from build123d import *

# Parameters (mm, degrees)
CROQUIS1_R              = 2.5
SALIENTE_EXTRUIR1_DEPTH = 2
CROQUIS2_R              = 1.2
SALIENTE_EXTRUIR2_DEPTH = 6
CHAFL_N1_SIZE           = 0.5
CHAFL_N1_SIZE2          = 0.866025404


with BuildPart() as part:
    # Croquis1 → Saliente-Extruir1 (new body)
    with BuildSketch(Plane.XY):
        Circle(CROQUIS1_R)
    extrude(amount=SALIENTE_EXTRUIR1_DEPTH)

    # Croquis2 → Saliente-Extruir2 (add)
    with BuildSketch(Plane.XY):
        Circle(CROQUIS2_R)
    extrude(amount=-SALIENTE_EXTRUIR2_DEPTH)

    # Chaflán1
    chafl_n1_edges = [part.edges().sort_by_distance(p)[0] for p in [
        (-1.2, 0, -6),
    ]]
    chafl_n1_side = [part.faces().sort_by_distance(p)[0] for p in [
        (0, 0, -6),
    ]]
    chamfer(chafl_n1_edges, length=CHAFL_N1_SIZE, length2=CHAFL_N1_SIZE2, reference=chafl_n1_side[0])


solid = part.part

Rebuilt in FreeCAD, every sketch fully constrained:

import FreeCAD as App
import Part
import Sketcher

V = App.Vector
Q = App.Units.Quantity


def edges_at(feature, points):
    """Names of the edges that pass closest to the given points."""
    edges = feature.Shape.Edges
    near = lambda p: min(range(len(edges)), key=lambda i: edges[i].distToShape(Part.Vertex(*p))[0])
    return sorted({f"Edge{near(p) + 1}" for p in points})

doc = App.newDocument("Part")
body = doc.addObject("PartDesign::Body", "Body")

# Sketch on XY plane
sketch1 = body.newObject("Sketcher::SketchObject", "Sketch")
sketch1.AttachmentSupport = (doc.getObject("XY_Plane"), [""])
sketch1.MapMode = "FlatFace"
sketch1.addGeometry(Part.Circle(V(0, 0, 0), V(0, 0, 1), 2.5), False)
sketch1.addConstraint(Sketcher.Constraint("Coincident", 0, 3, -1, 1))
sketch1.addConstraint(Sketcher.Constraint("Diameter", 0, Q("5 mm")))
pad1 = body.newObject("PartDesign::Pad", "Pad")
pad1.Profile = sketch1
pad1.Length = 2

# Sketch on XY plane
sketch2 = body.newObject("Sketcher::SketchObject", "Sketch001")
sketch2.AttachmentSupport = (doc.getObject("XY_Plane"), [""])
sketch2.MapMode = "FlatFace"
sketch2.addGeometry(Part.Circle(V(0, 0, 0), V(0, 0, 1), 1.2), False)
sketch2.addConstraint(Sketcher.Constraint("Coincident", 0, 3, -1, 1))
sketch2.addConstraint(Sketcher.Constraint("Diameter", 0, Q("2.4 mm")))
pad2 = body.newObject("PartDesign::Pad", "Pad001")
pad2.Profile = sketch2
pad2.Length = 6
pad2.Reversed = True
doc.recompute()

chamfer = body.newObject("PartDesign::Chamfer", "Chamfer")
chamfer.Base = (pad2, edges_at(pad2, [(-1.2, 0, -6)]))
chamfer.ChamferType = "Two distances"
chamfer.Size = 0.5
chamfer.Size2 = 0.866025
chamfer.FlipDirection = True

doc.recompute()
